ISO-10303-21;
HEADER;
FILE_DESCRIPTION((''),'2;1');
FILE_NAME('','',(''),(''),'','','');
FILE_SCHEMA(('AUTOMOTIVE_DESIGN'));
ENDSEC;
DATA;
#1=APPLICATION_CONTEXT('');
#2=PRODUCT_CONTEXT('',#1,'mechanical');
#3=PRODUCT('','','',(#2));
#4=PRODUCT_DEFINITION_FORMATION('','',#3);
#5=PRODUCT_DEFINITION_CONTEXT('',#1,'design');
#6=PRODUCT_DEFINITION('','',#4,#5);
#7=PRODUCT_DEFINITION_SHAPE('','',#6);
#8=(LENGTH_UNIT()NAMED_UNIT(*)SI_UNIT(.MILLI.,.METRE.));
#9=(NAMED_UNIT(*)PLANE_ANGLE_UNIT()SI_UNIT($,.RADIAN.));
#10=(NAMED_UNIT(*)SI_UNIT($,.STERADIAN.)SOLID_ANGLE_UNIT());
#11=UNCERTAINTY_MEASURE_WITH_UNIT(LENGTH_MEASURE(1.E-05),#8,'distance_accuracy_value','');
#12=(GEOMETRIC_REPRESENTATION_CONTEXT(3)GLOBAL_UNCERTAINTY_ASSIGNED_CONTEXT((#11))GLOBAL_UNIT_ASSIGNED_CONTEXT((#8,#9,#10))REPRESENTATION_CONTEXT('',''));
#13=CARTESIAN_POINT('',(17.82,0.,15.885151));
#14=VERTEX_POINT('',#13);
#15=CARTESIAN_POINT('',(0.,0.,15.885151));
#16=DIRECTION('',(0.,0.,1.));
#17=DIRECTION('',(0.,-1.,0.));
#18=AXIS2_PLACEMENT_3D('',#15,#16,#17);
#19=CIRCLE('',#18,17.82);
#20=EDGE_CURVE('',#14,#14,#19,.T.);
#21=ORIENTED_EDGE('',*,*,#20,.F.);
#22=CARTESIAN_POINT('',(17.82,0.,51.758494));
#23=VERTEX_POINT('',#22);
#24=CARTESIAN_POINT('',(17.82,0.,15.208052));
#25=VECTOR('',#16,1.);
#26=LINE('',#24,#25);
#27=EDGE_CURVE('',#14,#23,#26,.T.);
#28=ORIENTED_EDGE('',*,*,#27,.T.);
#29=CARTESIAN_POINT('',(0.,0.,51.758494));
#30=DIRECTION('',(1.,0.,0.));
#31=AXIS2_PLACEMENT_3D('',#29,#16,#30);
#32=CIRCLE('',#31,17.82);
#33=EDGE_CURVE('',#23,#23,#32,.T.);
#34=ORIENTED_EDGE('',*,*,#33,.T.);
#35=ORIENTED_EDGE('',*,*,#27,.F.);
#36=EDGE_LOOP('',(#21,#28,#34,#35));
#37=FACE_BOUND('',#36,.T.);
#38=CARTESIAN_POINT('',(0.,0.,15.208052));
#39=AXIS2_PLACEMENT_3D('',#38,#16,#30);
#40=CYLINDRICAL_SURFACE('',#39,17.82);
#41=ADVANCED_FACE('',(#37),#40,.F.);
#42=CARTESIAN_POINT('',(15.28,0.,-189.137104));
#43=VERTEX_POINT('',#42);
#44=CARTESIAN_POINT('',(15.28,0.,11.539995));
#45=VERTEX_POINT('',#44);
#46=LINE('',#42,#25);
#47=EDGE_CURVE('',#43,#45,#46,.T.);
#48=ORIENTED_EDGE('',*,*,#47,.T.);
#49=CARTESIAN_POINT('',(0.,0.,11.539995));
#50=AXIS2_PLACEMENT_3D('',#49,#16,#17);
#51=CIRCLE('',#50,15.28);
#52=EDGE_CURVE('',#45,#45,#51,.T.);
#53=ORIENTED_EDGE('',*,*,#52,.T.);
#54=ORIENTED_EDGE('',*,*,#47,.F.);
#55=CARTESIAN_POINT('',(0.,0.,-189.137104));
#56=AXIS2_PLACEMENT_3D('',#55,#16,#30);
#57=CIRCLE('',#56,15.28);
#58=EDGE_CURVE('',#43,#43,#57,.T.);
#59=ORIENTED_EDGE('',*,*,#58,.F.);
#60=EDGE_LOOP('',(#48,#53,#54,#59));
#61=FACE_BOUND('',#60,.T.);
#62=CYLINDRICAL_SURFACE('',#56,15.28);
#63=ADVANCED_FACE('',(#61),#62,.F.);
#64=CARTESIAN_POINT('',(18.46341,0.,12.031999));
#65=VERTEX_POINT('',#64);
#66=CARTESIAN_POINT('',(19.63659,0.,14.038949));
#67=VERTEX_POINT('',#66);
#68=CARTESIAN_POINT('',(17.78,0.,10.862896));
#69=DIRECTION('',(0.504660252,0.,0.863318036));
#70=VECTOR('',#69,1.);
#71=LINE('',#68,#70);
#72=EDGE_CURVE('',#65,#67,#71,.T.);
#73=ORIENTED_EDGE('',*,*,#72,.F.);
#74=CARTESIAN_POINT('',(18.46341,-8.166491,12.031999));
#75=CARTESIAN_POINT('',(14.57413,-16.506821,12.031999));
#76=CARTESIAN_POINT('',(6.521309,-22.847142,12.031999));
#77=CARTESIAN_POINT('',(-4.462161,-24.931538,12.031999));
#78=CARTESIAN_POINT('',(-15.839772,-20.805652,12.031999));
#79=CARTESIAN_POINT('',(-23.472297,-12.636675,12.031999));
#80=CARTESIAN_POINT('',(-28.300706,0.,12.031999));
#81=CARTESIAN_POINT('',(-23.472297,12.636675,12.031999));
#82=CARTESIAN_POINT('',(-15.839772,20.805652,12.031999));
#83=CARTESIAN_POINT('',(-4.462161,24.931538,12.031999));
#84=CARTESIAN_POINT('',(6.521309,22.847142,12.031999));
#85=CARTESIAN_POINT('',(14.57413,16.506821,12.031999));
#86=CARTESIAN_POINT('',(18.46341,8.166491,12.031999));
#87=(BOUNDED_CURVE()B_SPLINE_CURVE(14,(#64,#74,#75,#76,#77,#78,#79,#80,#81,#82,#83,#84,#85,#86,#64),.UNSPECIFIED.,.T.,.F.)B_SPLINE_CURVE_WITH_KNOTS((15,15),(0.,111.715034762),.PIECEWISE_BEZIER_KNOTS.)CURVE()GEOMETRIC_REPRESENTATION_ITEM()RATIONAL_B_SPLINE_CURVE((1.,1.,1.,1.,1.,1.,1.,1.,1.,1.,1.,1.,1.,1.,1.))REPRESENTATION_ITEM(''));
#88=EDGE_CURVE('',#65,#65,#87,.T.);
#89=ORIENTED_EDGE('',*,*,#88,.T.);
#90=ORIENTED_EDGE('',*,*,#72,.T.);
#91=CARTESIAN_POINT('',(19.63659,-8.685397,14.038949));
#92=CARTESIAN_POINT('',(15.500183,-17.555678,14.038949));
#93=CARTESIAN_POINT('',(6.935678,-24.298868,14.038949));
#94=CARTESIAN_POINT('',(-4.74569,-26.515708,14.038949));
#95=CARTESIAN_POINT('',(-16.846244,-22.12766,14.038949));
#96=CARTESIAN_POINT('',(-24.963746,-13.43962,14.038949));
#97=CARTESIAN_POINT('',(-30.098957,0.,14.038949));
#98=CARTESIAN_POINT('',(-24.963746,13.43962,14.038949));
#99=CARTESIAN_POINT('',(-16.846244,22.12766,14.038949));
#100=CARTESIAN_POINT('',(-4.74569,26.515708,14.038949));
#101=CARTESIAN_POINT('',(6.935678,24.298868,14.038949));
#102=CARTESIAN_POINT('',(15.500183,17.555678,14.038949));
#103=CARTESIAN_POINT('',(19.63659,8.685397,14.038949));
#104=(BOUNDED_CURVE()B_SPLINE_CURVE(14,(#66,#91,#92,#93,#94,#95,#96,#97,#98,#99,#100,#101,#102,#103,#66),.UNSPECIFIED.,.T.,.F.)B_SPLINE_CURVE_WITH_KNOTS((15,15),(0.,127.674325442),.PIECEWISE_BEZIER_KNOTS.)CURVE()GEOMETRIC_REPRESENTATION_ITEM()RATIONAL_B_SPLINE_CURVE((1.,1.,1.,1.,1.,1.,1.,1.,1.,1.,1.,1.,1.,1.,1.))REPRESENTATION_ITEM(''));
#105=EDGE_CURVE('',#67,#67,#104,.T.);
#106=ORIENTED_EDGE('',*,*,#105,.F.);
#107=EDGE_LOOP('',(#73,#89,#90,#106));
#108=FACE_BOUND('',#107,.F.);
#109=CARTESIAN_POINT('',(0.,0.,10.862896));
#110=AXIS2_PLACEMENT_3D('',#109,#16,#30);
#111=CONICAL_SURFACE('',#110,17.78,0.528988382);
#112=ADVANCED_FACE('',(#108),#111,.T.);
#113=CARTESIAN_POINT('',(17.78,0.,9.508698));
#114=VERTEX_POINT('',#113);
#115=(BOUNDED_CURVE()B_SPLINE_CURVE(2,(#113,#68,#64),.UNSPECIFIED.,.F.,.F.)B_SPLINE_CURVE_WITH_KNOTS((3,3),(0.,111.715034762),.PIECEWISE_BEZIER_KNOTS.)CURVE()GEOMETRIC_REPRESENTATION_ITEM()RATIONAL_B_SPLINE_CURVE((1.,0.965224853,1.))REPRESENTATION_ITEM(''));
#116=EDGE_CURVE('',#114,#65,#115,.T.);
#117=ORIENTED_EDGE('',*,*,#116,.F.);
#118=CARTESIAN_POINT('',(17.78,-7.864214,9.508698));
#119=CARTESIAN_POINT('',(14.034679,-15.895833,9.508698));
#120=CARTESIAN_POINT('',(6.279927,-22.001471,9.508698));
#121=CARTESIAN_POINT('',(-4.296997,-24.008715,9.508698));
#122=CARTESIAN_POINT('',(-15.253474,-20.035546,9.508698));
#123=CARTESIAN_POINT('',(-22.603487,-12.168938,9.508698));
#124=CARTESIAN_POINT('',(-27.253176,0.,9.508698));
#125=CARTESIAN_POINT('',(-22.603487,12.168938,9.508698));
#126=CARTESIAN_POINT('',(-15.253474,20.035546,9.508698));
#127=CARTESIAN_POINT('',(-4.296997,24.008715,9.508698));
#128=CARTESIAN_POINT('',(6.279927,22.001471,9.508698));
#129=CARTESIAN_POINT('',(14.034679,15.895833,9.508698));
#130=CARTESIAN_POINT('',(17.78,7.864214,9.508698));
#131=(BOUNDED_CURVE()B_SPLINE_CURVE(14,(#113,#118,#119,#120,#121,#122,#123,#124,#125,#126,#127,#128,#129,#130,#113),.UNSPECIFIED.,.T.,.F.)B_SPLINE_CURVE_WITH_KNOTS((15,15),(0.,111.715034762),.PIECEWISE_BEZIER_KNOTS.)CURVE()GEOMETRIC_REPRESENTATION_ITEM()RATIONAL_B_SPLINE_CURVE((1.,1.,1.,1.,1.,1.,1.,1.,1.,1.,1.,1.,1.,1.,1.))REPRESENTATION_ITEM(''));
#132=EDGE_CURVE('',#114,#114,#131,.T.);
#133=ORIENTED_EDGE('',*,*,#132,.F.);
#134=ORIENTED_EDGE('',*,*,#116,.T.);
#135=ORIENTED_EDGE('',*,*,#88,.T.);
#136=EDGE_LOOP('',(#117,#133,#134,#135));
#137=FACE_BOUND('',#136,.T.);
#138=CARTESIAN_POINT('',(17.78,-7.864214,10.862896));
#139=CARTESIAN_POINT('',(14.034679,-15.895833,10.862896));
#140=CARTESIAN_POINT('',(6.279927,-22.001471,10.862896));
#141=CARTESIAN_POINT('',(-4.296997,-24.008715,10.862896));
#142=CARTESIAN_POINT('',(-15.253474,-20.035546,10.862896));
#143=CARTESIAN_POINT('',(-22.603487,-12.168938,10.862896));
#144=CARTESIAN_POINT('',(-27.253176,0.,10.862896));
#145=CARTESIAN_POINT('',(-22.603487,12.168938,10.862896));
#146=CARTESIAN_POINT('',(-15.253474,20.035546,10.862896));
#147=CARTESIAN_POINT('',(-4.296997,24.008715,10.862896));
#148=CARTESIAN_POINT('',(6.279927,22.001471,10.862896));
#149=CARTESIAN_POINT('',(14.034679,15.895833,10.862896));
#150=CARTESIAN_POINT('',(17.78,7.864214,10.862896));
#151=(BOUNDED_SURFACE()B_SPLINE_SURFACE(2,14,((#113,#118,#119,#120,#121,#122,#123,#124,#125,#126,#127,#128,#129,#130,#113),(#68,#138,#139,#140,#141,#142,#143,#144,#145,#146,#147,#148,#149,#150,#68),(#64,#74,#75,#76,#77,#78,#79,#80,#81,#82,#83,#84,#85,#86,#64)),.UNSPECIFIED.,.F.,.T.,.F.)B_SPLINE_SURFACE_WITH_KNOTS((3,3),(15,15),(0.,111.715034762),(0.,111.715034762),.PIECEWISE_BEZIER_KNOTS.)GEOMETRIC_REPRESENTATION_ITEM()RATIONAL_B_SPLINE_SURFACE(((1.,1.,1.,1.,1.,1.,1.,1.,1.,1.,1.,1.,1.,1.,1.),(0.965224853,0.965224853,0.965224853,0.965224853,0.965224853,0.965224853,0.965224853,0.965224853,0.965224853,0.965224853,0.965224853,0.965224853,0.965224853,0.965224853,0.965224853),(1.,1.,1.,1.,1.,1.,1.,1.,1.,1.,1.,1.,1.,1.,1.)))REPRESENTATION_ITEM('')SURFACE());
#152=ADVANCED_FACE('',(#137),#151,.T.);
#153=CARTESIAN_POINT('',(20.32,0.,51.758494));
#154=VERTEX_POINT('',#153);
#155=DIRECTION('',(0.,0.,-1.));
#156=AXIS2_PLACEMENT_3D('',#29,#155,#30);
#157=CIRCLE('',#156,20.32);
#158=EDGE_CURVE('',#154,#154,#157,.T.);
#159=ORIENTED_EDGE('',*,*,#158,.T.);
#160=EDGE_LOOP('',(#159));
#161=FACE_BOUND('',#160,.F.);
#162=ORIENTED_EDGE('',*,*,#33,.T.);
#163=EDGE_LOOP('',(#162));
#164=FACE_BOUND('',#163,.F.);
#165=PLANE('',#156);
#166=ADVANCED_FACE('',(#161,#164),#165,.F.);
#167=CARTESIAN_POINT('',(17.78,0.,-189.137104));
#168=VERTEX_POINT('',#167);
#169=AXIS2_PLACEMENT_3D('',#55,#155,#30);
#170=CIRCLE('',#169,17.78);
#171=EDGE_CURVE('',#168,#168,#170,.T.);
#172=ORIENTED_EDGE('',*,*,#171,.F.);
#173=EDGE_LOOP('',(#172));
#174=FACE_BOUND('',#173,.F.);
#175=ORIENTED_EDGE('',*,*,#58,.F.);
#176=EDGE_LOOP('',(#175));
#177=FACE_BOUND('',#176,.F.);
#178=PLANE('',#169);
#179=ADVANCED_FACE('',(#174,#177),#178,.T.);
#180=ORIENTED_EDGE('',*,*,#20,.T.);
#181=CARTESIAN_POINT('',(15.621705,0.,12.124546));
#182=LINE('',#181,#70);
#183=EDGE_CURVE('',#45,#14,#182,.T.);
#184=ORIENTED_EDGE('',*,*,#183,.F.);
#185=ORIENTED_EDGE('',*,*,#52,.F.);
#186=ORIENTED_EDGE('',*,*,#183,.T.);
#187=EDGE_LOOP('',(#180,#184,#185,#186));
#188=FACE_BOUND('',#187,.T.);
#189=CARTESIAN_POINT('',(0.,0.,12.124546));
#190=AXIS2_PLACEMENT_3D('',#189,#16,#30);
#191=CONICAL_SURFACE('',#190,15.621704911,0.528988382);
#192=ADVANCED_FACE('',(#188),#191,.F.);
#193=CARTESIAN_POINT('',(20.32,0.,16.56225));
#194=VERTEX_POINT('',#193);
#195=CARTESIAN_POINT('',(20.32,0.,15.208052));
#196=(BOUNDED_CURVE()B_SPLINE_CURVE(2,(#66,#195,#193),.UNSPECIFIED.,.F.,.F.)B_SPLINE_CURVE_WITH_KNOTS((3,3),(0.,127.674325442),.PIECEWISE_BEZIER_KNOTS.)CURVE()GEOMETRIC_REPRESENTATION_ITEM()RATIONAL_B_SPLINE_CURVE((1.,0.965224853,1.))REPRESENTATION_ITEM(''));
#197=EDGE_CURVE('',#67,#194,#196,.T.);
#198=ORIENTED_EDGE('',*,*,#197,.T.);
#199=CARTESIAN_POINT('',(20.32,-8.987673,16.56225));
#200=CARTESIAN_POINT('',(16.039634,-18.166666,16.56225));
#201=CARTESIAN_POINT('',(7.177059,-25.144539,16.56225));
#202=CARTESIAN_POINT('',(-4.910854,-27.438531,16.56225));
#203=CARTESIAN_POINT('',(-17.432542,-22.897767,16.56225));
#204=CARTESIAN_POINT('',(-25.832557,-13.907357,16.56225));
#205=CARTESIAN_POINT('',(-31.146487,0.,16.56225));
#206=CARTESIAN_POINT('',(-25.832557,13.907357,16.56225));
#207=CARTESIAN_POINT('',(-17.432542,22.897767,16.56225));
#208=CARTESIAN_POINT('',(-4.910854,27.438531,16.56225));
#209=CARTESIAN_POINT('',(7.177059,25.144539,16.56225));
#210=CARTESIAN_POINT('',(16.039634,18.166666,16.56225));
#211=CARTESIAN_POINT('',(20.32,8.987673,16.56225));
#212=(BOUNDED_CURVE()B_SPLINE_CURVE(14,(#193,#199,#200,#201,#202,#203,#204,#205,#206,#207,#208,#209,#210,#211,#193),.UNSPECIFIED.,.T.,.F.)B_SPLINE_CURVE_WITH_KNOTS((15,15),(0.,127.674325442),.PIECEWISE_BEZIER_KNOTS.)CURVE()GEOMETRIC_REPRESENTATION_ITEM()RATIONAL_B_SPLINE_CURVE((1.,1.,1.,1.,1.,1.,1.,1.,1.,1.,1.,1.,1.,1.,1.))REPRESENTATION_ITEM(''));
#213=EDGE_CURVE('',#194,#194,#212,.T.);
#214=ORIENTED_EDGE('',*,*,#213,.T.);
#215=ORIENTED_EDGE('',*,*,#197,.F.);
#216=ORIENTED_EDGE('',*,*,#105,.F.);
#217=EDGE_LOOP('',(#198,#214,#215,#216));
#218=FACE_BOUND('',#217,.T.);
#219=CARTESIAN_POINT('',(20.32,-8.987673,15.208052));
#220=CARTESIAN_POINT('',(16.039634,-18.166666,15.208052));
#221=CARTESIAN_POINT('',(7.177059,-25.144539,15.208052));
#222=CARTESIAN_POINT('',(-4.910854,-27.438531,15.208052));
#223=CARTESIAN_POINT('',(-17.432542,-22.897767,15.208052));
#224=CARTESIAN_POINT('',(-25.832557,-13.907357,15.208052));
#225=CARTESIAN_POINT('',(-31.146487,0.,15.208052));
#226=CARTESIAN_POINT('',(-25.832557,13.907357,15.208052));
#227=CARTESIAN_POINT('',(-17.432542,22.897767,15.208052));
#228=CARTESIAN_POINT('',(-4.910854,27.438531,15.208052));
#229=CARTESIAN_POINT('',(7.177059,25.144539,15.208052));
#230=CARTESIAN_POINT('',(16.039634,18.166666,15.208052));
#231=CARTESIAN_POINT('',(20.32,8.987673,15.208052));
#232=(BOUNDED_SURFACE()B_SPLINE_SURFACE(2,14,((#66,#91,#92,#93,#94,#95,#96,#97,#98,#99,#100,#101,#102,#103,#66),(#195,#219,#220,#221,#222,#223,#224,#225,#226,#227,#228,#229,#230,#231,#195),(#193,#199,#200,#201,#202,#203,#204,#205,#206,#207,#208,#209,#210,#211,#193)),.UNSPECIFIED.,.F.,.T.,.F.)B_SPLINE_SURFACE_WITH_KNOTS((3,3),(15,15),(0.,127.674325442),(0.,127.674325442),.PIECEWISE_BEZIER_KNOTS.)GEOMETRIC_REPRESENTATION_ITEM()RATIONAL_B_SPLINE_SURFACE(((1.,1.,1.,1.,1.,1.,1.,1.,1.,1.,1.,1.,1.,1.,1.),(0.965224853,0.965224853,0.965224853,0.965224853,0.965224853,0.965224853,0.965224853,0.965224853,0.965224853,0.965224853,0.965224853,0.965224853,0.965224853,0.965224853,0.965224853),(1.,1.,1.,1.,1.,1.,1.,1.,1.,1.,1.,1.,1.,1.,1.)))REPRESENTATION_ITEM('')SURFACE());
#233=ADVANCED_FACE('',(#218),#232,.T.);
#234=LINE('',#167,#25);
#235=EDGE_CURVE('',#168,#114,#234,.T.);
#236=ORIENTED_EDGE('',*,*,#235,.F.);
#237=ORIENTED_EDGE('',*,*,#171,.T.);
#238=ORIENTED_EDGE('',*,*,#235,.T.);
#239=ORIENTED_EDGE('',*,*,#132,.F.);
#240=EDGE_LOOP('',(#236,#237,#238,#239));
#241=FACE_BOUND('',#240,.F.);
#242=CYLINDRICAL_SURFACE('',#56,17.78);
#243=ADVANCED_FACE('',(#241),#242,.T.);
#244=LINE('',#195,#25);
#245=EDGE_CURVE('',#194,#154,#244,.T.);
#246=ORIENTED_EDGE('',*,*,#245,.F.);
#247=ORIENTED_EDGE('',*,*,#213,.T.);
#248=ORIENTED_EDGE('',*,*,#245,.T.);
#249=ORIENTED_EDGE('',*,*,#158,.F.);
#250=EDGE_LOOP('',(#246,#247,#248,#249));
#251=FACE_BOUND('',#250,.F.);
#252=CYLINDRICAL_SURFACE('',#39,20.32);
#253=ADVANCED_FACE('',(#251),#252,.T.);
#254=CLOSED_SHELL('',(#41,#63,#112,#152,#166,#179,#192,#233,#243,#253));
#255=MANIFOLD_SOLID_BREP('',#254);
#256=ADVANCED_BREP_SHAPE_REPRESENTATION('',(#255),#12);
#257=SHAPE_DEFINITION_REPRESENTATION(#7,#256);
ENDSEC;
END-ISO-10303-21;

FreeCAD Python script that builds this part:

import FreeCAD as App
import Part
import Sketcher


def edges_at(feature, points):
    """Names of the edges that pass closest to the given points."""
    edges = feature.Shape.Edges
    near = lambda p: min(range(len(edges)), key=lambda i: edges[i].distToShape(Part.Vertex(*p))[0])
    return sorted({f"Edge{near(p) + 1}" for p in points})


def faces_at(feature, points):
    """Names of the faces that lie closest to the given points."""
    faces = feature.Shape.Faces
    near = lambda p: min(range(len(faces)), key=lambda i: faces[i].distToShape(Part.Vertex(*p))[0])
    return sorted({f"Face{near(p) + 1}" for p in points})

doc = App.newDocument("Part")
body = doc.addObject("PartDesign::Body", "Body")

sketch1 = doc.addObject("Sketcher::SketchObject", "Sketch")
body.addObject(sketch1)
sketch1.AttachmentSupport = (doc.XZ_Plane, [""])
sketch1.MapMode = "FlatFace"
sketch1.addGeometry([
    Part.LineSegment(App.Vector(20, 15, 0), App.Vector(20, 52, 0)),
    Part.LineSegment(App.Vector(20, 52, 0), App.Vector(0, 52, 0)),
    Part.LineSegment(App.Vector(0, 52, 0), App.Vector(0, -189, 0)),
    Part.LineSegment(App.Vector(0, -189, 0), App.Vector(18, -189, 0)),
    Part.LineSegment(App.Vector(18, -189, 0), App.Vector(18, 11, 0)),
    Part.LineSegment(App.Vector(18, 11, 0), App.Vector(20, 15, 0)),
], False)
sketch1.addConstraint([
    Sketcher.Constraint("Coincident", 0, 2, 1, 1),
    Sketcher.Constraint("Coincident", 1, 2, 2, 1),
    Sketcher.Constraint("Coincident", 2, 2, 3, 1),
    Sketcher.Constraint("Coincident", 3, 2, 4, 1),
    Sketcher.Constraint("Coincident", 4, 2, 5, 1),
    Sketcher.Constraint("Coincident", 5, 2, 0, 1),
    Sketcher.Constraint("Vertical", 0),
    Sketcher.Constraint("Horizontal", 1),
    Sketcher.Constraint("Vertical", 2),
    Sketcher.Constraint("Horizontal", 3),
    Sketcher.Constraint("Vertical", 4),
    Sketcher.Constraint("PointOnObject", 1, 2, -2),
    Sketcher.Constraint("DistanceY", 4, 1, 4, 2, 200.0),
    Sketcher.Constraint("DistanceX", 1, 2, 1, 1, 20.32),
    Sketcher.Constraint("DistanceX", 3, 1, 3, 2, 17.78),
    Sketcher.Constraint("DistanceY", 2, 2, 2, 1, 240.895598),
    Sketcher.Constraint("DistanceY", 0, 1, 0, 2, 36.550442),
    Sketcher.Constraint("DistanceY", -1, 1, 0, 2, 51.758494),
])
revolution = doc.addObject("PartDesign::Revolution", "Revolution")
body.addObject(revolution)
revolution.Profile = sketch1
revolution.ReferenceAxis = (sketch1, ["V_Axis"])
revolution.Angle = 360
doc.recompute()

thickness = doc.addObject("PartDesign::Thickness", "Thickness")
body.addObject(thickness)
thickness.Base = (revolution, faces_at(revolution, [(0, 0, 51.758), (0, 0, -189.137)]))
thickness.Value = 2.5
thickness.Reversed = True
thickness.Join = "Intersection"
doc.recompute()

fillet = doc.addObject("PartDesign::Fillet", "Fillet")
body.addObject(fillet)
fillet.Base = (thickness, edges_at(thickness, [(-17.78, 0, 10.863), (-20.32, 0, 15.208), (19.05, 0, 13.035)]))
fillet.Radius = 5

doc.recompute()
